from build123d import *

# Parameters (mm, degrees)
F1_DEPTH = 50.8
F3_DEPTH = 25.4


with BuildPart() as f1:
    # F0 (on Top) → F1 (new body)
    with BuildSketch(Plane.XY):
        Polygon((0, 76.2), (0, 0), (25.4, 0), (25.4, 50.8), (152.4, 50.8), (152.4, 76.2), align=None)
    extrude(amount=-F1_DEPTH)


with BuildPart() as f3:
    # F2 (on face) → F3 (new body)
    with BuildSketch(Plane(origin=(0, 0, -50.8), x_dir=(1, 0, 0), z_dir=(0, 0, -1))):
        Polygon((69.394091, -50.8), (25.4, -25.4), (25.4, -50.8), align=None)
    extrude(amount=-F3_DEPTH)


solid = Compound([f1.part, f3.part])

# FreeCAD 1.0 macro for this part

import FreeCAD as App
import Part
import Sketcher
from FreeCAD import Vector
Q = App.Units.Quantity


def add_polygon(sketch, points):
    """Adds a closed chain of lines whose ends are joined by coincident constraints."""
    first, n = sketch.GeometryCount, len(points)
    for a, b in zip(points, points[1:] + points[:1]):
        sketch.addGeometry(Part.LineSegment(App.Vector(*a, 0), App.Vector(*b, 0)), False)
    for i in range(n):
        sketch.addConstraint(Sketcher.Constraint("Coincident", first + i, 2, first + (i + 1) % n, 1))

doc = App.newDocument("Part")
body = doc.addObject("PartDesign::Body", "Body")

sketch1 = body.newObject("Sketcher::SketchObject", "Sketch")
sketch1.AttachmentSupport = (doc.getObject("XY_Plane"), [""])
sketch1.MapMode = "FlatFace"
add_polygon(sketch1, [(0, 76), (0, 0), (25, 0), (25, 51), (152, 51), (152, 76)])
sketch1.addConstraint([
    Sketcher.Constraint("Vertical", 0),
    Sketcher.Constraint("Horizontal", 1),
    Sketcher.Constraint("Vertical", 2),
    Sketcher.Constraint("Horizontal", 3),
    Sketcher.Constraint("Vertical", 4),
    Sketcher.Constraint("Horizontal", 5),
    Sketcher.Constraint("Coincident", 0, 2, -1, 1),
    Sketcher.Constraint("Equal", 1, 4),
    Sketcher.Constraint("DistanceX", 1, 1, 1, 2, Q("1 in")),
    Sketcher.Constraint("DistanceX", 3, 1, 3, 2, Q("5 in")),
    Sketcher.Constraint("DistanceY", 0, 2, 0, 1, Q("3 in")),
])
pad1 = body.newObject("PartDesign::Pad", "Pad")
pad1.Profile = sketch1
pad1.Length = Q("2 in")
pad1.Reversed = True
body2 = doc.addObject("PartDesign::Body", "Body001")

sketch2 = body2.newObject("Sketcher::SketchObject", "Sketch001")
sketch2.AttachmentSupport = (doc.getObject("XY_Plane001"), [""])
sketch2.MapMode = "FlatFace"
sketch2.AttachmentOffset = App.Placement(Vector(0, 0, -2 * 25.4), App.Rotation())
add_polygon(sketch2, [(69, 51), (25, 25), (25, 51)])
sketch2.addConstraint([
    Sketcher.Constraint("Vertical", 1),
    Sketcher.Constraint("Horizontal", 2),
    Sketcher.Constraint("DistanceY", 1, 1, 1, 2, Q("1 in")),
    Sketcher.Constraint("Distance", 0, Q("2 in")),
    Sketcher.Constraint("DistanceX", -1, 1, 0, 2, Q("1 in")),
    Sketcher.Constraint("DistanceY", -1, 1, 0, 2, Q("1 in")),
])
pad2 = body2.newObject("PartDesign::Pad", "Pad001")
pad2.Profile = sketch2
pad2.Length = Q("1 in")

doc.recompute()
